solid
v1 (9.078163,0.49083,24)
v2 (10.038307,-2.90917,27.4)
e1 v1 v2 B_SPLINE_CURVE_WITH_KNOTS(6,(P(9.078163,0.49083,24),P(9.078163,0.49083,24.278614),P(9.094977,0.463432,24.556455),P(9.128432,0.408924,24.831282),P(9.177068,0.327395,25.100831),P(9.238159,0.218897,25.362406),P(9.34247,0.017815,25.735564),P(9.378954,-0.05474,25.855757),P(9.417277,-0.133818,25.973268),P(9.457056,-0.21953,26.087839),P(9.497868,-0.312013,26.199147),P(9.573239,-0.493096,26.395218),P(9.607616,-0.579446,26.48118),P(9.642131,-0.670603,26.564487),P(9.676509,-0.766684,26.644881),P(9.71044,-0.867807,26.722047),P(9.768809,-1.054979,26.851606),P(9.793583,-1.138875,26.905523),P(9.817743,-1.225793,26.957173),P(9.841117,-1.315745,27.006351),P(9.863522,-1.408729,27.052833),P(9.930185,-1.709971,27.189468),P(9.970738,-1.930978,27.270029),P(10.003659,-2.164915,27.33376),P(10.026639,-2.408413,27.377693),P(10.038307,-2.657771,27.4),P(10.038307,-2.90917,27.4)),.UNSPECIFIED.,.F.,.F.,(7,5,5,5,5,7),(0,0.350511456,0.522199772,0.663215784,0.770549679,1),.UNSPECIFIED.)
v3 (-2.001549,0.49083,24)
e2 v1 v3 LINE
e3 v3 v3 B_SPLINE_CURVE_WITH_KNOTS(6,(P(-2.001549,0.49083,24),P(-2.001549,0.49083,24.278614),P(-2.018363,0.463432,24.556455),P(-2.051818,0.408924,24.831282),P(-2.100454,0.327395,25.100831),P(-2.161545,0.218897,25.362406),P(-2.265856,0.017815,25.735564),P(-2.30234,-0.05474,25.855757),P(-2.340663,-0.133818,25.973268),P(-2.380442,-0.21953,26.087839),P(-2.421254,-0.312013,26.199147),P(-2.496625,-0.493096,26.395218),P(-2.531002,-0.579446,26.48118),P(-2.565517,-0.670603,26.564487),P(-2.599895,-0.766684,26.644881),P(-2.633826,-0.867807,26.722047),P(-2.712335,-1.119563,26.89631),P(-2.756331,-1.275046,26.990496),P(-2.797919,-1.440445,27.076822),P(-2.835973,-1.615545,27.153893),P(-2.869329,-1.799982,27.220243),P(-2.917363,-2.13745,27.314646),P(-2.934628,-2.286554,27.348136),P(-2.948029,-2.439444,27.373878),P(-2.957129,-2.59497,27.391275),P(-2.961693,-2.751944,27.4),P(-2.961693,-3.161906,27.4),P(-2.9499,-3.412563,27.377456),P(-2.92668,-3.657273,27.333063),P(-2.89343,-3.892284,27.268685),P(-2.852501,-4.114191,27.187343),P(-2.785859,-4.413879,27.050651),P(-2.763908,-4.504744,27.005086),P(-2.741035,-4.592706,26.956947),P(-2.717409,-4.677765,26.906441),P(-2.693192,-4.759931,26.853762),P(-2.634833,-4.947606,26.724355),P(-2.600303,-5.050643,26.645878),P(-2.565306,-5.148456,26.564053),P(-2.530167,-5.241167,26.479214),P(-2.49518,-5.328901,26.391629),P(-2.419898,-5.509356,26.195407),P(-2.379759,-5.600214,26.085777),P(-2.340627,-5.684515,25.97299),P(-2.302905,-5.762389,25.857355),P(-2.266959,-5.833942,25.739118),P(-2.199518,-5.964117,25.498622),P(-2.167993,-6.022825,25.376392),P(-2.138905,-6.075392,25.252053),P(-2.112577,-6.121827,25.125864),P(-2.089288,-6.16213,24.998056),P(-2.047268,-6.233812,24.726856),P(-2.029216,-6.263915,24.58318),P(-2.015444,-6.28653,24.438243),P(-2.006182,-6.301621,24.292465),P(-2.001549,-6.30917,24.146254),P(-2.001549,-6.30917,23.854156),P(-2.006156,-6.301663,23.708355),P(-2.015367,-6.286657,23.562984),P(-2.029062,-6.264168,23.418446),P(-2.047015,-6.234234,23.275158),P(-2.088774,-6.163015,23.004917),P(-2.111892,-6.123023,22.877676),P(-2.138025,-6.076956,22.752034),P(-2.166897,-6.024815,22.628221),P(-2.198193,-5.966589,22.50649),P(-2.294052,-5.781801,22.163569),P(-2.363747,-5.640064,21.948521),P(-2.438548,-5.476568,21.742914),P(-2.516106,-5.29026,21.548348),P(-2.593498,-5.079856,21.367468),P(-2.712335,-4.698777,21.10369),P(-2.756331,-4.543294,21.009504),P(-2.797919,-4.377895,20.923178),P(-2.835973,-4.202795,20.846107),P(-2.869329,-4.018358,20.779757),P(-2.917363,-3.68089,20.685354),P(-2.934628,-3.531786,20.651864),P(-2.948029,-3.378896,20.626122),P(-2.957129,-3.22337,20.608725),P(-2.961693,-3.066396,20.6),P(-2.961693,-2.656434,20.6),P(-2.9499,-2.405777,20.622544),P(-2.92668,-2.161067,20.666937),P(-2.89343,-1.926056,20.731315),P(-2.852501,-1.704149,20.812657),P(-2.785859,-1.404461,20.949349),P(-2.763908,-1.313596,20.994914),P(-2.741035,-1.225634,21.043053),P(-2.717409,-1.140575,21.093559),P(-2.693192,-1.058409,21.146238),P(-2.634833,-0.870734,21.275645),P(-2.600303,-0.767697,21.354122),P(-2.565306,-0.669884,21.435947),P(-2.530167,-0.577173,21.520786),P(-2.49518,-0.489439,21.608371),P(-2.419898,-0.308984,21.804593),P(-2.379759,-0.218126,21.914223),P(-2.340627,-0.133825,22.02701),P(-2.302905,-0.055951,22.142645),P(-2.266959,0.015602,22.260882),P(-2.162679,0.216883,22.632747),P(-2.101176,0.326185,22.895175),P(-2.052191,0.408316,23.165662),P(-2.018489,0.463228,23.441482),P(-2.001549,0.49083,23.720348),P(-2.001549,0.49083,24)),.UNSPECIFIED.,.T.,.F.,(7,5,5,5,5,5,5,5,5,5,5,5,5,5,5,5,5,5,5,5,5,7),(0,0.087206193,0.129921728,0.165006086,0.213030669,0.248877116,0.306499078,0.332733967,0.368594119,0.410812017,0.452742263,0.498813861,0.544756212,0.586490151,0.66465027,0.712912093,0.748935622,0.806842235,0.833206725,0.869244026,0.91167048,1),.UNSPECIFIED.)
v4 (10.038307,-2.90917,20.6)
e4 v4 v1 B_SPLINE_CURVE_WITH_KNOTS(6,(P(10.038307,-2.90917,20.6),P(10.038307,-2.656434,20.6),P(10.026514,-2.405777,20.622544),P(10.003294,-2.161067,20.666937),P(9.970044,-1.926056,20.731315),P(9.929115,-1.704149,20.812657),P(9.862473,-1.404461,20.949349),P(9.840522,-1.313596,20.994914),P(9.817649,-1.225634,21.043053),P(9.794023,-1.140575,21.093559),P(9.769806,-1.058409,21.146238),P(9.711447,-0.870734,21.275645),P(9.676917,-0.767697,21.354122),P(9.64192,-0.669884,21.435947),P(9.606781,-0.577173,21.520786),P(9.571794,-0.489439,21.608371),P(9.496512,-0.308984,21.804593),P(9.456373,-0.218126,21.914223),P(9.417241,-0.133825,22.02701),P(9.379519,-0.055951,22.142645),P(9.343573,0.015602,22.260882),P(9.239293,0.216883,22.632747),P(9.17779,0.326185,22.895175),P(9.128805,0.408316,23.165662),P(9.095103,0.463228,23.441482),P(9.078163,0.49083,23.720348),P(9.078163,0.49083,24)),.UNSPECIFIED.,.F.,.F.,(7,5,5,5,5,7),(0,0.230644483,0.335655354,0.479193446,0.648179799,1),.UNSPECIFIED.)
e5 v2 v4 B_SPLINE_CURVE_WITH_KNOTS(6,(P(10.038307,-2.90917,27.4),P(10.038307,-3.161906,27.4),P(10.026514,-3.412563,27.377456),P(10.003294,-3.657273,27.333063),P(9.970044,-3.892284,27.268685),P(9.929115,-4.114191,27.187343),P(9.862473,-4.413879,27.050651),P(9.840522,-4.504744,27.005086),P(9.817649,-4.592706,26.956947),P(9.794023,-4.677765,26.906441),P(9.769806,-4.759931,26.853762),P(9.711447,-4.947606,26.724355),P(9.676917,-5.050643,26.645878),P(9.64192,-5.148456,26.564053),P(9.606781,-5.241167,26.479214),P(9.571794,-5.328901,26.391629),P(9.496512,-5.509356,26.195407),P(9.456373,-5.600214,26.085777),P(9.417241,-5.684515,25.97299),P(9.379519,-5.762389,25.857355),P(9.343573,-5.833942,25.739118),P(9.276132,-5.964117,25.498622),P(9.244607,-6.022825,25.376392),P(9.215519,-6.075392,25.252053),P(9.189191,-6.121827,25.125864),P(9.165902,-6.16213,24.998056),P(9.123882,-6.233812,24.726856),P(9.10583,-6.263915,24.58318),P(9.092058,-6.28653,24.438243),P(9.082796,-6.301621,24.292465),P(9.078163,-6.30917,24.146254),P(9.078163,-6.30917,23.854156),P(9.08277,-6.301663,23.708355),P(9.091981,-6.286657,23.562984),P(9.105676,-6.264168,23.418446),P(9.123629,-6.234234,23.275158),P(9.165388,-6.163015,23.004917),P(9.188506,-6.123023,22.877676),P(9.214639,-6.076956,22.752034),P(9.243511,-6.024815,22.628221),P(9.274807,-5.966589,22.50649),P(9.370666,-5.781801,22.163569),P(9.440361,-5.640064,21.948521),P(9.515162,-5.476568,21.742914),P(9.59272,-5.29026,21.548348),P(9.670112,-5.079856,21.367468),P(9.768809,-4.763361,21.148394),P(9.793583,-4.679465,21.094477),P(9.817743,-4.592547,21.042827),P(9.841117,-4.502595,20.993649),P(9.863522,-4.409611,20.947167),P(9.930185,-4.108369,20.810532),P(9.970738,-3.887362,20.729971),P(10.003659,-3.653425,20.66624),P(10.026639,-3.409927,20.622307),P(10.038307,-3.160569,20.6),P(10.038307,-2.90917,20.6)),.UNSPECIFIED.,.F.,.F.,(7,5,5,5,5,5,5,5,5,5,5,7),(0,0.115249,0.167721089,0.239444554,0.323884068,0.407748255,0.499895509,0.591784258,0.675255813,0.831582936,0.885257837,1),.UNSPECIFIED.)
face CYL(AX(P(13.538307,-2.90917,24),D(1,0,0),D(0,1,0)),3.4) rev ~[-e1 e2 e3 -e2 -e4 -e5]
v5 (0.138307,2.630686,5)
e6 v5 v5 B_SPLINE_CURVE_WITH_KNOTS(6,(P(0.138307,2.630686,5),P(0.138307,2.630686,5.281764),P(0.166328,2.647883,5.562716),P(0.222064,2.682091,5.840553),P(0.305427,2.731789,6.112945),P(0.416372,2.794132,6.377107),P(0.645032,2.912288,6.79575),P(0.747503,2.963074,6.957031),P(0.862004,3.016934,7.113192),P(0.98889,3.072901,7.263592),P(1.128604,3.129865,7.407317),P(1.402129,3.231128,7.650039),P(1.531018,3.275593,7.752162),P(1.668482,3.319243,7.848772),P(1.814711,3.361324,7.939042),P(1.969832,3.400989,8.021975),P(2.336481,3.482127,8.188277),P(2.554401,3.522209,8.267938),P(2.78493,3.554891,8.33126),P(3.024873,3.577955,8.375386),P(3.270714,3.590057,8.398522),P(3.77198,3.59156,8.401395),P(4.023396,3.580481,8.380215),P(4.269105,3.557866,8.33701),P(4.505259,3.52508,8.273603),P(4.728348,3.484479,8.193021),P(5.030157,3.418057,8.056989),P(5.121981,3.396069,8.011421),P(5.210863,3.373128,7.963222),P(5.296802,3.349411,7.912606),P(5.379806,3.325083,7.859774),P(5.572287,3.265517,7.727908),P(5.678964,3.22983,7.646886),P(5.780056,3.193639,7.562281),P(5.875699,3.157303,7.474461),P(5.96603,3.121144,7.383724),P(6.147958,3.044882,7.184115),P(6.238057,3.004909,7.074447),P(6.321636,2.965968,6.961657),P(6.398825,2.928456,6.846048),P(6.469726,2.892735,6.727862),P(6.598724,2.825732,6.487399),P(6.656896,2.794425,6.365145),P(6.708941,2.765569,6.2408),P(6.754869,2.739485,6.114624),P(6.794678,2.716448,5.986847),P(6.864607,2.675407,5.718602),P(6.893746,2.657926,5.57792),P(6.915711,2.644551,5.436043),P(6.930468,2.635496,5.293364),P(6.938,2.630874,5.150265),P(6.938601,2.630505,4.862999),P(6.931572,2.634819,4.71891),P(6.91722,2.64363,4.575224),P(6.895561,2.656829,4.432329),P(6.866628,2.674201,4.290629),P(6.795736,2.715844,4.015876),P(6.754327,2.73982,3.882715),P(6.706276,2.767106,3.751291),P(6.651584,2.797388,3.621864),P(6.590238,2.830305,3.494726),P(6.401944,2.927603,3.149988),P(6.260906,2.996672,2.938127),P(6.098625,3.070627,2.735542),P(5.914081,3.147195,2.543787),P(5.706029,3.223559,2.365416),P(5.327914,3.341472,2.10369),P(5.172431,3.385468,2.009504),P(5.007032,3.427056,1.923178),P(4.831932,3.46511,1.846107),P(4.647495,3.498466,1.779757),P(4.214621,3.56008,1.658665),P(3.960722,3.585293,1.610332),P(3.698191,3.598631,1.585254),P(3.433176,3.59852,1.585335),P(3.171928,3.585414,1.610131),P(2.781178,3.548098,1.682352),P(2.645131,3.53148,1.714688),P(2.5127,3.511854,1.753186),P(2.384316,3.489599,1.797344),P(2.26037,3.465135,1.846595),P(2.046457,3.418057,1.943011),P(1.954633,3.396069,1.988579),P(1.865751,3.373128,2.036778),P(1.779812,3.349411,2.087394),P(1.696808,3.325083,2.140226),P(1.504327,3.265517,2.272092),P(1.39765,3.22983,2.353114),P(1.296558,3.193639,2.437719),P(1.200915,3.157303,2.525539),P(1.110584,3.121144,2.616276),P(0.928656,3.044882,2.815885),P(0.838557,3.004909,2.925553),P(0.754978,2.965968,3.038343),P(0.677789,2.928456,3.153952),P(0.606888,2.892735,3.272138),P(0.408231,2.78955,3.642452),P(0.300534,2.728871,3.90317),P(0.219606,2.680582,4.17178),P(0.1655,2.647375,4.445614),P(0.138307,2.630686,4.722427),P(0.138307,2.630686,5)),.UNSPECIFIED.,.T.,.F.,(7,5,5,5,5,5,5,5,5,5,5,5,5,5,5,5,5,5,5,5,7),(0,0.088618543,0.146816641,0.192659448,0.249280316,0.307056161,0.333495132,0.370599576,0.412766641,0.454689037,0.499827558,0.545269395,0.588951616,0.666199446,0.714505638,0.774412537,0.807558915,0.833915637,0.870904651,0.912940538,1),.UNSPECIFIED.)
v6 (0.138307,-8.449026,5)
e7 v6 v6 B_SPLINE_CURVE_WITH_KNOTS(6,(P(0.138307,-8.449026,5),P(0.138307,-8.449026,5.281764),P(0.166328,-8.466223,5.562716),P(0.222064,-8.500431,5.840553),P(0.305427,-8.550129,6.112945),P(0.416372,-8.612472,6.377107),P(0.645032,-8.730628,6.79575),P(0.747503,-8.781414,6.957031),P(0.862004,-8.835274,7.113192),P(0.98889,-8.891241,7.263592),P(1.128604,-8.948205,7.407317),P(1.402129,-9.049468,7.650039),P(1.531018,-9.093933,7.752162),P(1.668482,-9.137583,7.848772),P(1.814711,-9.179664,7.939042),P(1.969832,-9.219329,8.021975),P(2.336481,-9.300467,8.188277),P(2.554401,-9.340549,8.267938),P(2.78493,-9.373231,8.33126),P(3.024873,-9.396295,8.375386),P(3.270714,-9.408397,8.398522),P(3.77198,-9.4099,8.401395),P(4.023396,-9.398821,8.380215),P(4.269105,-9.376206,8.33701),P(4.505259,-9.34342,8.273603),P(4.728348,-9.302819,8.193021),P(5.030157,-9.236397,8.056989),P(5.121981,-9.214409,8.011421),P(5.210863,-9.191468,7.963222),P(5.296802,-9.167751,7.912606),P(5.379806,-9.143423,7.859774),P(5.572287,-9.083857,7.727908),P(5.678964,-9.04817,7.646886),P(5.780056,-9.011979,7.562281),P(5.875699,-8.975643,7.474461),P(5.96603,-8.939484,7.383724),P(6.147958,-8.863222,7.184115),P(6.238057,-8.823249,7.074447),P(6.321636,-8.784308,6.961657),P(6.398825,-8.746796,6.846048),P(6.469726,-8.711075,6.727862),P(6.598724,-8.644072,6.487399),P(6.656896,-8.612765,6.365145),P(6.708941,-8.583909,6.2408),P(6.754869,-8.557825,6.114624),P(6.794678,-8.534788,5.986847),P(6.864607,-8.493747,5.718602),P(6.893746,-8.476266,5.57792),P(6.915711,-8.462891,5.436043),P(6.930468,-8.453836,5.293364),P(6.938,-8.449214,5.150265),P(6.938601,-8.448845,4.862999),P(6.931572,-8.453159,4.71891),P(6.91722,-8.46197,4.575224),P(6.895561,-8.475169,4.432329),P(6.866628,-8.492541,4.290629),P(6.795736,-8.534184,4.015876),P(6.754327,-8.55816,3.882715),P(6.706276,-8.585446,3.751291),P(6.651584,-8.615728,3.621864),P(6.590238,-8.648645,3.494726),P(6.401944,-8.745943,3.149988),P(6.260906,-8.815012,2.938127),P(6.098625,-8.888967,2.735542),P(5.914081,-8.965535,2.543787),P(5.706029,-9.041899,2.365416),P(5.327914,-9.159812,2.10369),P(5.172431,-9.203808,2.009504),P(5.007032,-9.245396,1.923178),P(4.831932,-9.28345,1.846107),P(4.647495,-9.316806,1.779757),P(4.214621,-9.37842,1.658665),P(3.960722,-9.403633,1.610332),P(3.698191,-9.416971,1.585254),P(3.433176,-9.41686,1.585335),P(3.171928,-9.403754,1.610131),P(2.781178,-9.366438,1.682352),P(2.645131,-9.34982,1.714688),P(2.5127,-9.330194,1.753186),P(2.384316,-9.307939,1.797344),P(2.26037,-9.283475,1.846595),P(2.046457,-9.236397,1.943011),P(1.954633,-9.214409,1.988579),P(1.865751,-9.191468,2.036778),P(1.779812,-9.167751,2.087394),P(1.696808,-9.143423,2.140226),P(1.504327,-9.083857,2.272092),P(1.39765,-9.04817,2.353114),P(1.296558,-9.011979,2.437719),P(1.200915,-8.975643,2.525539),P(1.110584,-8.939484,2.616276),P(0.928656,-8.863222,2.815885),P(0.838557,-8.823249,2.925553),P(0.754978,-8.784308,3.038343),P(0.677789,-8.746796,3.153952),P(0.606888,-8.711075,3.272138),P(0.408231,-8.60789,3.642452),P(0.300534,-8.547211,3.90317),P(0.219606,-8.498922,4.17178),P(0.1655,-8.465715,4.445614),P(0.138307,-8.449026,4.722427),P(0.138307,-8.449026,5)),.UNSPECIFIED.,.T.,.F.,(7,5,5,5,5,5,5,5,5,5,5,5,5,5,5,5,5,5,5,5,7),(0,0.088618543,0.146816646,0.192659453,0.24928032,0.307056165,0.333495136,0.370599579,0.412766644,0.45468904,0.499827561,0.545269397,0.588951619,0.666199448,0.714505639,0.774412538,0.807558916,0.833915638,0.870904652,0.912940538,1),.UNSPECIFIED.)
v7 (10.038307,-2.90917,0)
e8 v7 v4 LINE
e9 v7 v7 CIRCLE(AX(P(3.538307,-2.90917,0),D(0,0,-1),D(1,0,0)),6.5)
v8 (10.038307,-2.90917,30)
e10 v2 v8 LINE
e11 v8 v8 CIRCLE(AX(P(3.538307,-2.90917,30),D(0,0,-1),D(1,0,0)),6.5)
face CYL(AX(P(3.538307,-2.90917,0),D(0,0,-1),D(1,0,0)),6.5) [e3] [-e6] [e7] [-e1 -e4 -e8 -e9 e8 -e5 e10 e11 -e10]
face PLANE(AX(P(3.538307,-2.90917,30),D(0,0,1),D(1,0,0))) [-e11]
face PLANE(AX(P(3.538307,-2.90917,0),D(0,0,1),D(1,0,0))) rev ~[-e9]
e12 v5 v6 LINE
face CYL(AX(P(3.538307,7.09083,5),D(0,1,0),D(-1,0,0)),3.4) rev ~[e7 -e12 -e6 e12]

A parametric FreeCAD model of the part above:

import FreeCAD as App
import Part
import Sketcher
from FreeCAD import Vector
Q = App.Units.Quantity


def add_polygon(sketch, points):
    """Adds a closed chain of lines whose ends are joined by coincident constraints."""
    first, n = sketch.GeometryCount, len(points)
    for a, b in zip(points, points[1:] + points[:1]):
        sketch.addGeometry(Part.LineSegment(App.Vector(*a, 0), App.Vector(*b, 0)), False)
    for i in range(n):
        sketch.addConstraint(Sketcher.Constraint("Coincident", first + i, 2, first + (i + 1) % n, 1))

doc = App.newDocument("Part")
body = doc.addObject("PartDesign::Body", "Body")

# Sketch on XY plane
sketch1 = doc.addObject("Sketcher::SketchObject", "Sketch")
body.addObject(sketch1)
sketch1.AttachmentSupport = (doc.XY_Plane, [""])
sketch1.MapMode = "FlatFace"
add_polygon(sketch1, [(-6, 7), (-6, -13), (14, -13), (14, 7)])  # lines 0-3
sketch1.addConstraint([
    Sketcher.Constraint("Vertical", 0),
    Sketcher.Constraint("Horizontal", 1),
    Sketcher.Constraint("Vertical", 2),
    Sketcher.Constraint("Horizontal", 3),
    Sketcher.Constraint("Equal", 3, 0),
    Sketcher.Constraint("DistanceX", 1, 1, 1, 2, Q("20 mm")),
    Sketcher.Constraint("DistanceY", 0, 2, -1, 1, Q("12.90917 mm")),
    Sketcher.Constraint("DistanceX", 0, 2, -1, 1, Q("6.461693 mm")),
])
pad1 = doc.addObject("PartDesign::Pad", "Pad")
body.addObject(pad1)
pad1.Profile = sketch1
pad1.Length = 30

# Sketch on YZ plane
sketch2 = doc.addObject("Sketcher::SketchObject", "Sketch001")
body.addObject(sketch2)
sketch2.AttachmentSupport = (doc.YZ_Plane, [""])
sketch2.MapMode = "FlatFace"
sketch2.AttachmentOffset = App.Placement(Vector(0, 0, 13.538307), App.Rotation())
sketch2.addGeometry(Part.Circle(Vector(-2.9, 24, 0), Vector(0, 0, 1), 3.4), False)
sketch2.addConstraint([
    Sketcher.Constraint("Diameter", 0, Q("6.8 mm")),
    Sketcher.Constraint("DistanceY", -1, 1, 0, 3, Q("24 mm")),
    Sketcher.Constraint("DistanceX", 0, 3, -1, 1, Q("2.90917 mm")),
])
pocket1 = doc.addObject("PartDesign::Pocket", "Pocket")
body.addObject(pocket1)
pocket1.Profile = sketch2
pocket1.Length = 25

# Sketch on XZ plane
sketch3 = doc.addObject("Sketcher::SketchObject", "Sketch002")
body.addObject(sketch3)
sketch3.AttachmentSupport = (doc.XZ_Plane, [""])
sketch3.MapMode = "FlatFace"
sketch3.AttachmentOffset = App.Placement(Vector(0, 0, -7.09083), App.Rotation())
sketch3.addGeometry(Part.Circle(Vector(3.5, 5, 0), Vector(0, 0, 1), 3.4), False)
sketch3.addConstraint([
    Sketcher.Constraint("Diameter", 0, Q("6.8 mm")),
    Sketcher.Constraint("DistanceY", -1, 1, 0, 3, Q("5 mm")),
    Sketcher.Constraint("DistanceX", -1, 1, 0, 3, Q("3.538307 mm")),
])
pocket2 = doc.addObject("PartDesign::Pocket", "Pocket001")
body.addObject(pocket2)
pocket2.Profile = sketch3
pocket2.Length = 25
pocket2.Reversed = True

# Sketch on XY plane
sketch4 = doc.addObject("Sketcher::SketchObject", "Sketch003")
body.addObject(sketch4)
sketch4.AttachmentSupport = (doc.XY_Plane, [""])
sketch4.MapMode = "FlatFace"
add_polygon(sketch4, [(-6, -13), (-6, 7), (14, 7), (14, -13)])  # lines 0-3
sketch4.addGeometry(Part.Circle(Vector(4, -3, 0), Vector(0, 0, 1), 6), False)  # 4
sketch4.addConstraint([
    Sketcher.Constraint("Vertical", 0),
    Sketcher.Constraint("Horizontal", 1),
    Sketcher.Constraint("Vertical", 2),
    Sketcher.Constraint("Horizontal", 3),
    Sketcher.Constraint("Equal", 3, 0),
    Sketcher.Constraint("Diameter", 4, Q("13 mm")),
    Sketcher.Constraint("DistanceX", 1, 1, 1, 2, Q("20 mm")),
    Sketcher.Constraint("DistanceX", 0, 2, 4, 3, Q("10 mm")),
    Sketcher.Constraint("DistanceY", 4, 3, 0, 2, Q("10 mm")),
    Sketcher.Constraint("DistanceY", 4, 3, -1, 1, Q("2.90917 mm")),
    Sketcher.Constraint("DistanceX", -1, 1, 4, 3, Q("3.538307 mm")),
])
pocket3 = doc.addObject("PartDesign::Pocket", "Pocket002")
body.addObject(pocket3)
pocket3.Profile = sketch4
pocket3.Length = 30
pocket3.Reversed = True

doc.recompute()
